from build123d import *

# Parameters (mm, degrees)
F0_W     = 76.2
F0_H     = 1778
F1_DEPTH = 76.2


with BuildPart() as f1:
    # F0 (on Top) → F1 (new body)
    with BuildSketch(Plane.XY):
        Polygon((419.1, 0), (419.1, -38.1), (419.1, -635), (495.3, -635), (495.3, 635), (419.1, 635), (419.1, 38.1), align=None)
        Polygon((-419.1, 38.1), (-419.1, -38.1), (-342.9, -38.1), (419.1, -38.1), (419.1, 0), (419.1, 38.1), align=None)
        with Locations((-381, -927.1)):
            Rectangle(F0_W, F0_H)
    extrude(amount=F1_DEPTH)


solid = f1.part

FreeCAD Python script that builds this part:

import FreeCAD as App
import Part
import Sketcher
Q = App.Units.Quantity


def add_polygon(sketch, points):
    """Adds a closed chain of lines whose ends are joined by coincident constraints."""
    first, n = sketch.GeometryCount, len(points)
    for a, b in zip(points, points[1:] + points[:1]):
        sketch.addGeometry(Part.LineSegment(App.Vector(*a, 0), App.Vector(*b, 0)), False)
    for i in range(n):
        sketch.addConstraint(Sketcher.Constraint("Coincident", first + i, 2, first + (i + 1) % n, 1))

doc = App.newDocument("Part")
body = doc.addObject("PartDesign::Body", "Body")

# Sketch on XY plane
sketch1 = body.newObject("Sketcher::SketchObject", "Sketch")
sketch1.AttachmentSupport = (doc.getObject("XY_Plane"), [""])
sketch1.MapMode = "FlatFace"
add_polygon(sketch1, [(419, -635), (495, -635), (495, 635), (419, 635), (419, 38), (-419, 38), (-419, -1816), (-343, -1816), (-343, -38), (419, -38)])  # lines 0-9
sketch1.addConstraint([
    Sketcher.Constraint("Horizontal", 0),
    Sketcher.Constraint("Vertical", 1),
    Sketcher.Constraint("Horizontal", 2),
    Sketcher.Constraint("Vertical", 3),
    Sketcher.Constraint("Horizontal", 4),
    Sketcher.Constraint("Vertical", 5),
    Sketcher.Constraint("Horizontal", 6),
    Sketcher.Constraint("Vertical", 7),
    Sketcher.Constraint("Horizontal", 8),
    Sketcher.Constraint("Vertical", 9),
    Sketcher.Constraint("Symmetric", 4, 2, 8, 2, -1, 1),
    Sketcher.Constraint("Symmetric", 2, 2, 9, 2, -1),
    Sketcher.Constraint("Equal", 2, 6),
    Sketcher.Constraint("DistanceX", 0, 1, 0, 2, Q("3 in")),
    Sketcher.Constraint("DistanceX", 4, 2, 4, 1, Q("33 in")),
    Sketcher.Constraint("DistanceY", 1, 1, 1, 2, Q("50 in")),
    Sketcher.Constraint("DistanceY", 5, 2, 5, 1, Q("73 in")),
    Sketcher.Constraint("DistanceY", 7, 1, 7, 2, Q("70 in")),
])
pad1 = body.newObject("PartDesign::Pad", "Pad")
pad1.Profile = sketch1
pad1.Length = Q("3 in")

doc.recompute()
